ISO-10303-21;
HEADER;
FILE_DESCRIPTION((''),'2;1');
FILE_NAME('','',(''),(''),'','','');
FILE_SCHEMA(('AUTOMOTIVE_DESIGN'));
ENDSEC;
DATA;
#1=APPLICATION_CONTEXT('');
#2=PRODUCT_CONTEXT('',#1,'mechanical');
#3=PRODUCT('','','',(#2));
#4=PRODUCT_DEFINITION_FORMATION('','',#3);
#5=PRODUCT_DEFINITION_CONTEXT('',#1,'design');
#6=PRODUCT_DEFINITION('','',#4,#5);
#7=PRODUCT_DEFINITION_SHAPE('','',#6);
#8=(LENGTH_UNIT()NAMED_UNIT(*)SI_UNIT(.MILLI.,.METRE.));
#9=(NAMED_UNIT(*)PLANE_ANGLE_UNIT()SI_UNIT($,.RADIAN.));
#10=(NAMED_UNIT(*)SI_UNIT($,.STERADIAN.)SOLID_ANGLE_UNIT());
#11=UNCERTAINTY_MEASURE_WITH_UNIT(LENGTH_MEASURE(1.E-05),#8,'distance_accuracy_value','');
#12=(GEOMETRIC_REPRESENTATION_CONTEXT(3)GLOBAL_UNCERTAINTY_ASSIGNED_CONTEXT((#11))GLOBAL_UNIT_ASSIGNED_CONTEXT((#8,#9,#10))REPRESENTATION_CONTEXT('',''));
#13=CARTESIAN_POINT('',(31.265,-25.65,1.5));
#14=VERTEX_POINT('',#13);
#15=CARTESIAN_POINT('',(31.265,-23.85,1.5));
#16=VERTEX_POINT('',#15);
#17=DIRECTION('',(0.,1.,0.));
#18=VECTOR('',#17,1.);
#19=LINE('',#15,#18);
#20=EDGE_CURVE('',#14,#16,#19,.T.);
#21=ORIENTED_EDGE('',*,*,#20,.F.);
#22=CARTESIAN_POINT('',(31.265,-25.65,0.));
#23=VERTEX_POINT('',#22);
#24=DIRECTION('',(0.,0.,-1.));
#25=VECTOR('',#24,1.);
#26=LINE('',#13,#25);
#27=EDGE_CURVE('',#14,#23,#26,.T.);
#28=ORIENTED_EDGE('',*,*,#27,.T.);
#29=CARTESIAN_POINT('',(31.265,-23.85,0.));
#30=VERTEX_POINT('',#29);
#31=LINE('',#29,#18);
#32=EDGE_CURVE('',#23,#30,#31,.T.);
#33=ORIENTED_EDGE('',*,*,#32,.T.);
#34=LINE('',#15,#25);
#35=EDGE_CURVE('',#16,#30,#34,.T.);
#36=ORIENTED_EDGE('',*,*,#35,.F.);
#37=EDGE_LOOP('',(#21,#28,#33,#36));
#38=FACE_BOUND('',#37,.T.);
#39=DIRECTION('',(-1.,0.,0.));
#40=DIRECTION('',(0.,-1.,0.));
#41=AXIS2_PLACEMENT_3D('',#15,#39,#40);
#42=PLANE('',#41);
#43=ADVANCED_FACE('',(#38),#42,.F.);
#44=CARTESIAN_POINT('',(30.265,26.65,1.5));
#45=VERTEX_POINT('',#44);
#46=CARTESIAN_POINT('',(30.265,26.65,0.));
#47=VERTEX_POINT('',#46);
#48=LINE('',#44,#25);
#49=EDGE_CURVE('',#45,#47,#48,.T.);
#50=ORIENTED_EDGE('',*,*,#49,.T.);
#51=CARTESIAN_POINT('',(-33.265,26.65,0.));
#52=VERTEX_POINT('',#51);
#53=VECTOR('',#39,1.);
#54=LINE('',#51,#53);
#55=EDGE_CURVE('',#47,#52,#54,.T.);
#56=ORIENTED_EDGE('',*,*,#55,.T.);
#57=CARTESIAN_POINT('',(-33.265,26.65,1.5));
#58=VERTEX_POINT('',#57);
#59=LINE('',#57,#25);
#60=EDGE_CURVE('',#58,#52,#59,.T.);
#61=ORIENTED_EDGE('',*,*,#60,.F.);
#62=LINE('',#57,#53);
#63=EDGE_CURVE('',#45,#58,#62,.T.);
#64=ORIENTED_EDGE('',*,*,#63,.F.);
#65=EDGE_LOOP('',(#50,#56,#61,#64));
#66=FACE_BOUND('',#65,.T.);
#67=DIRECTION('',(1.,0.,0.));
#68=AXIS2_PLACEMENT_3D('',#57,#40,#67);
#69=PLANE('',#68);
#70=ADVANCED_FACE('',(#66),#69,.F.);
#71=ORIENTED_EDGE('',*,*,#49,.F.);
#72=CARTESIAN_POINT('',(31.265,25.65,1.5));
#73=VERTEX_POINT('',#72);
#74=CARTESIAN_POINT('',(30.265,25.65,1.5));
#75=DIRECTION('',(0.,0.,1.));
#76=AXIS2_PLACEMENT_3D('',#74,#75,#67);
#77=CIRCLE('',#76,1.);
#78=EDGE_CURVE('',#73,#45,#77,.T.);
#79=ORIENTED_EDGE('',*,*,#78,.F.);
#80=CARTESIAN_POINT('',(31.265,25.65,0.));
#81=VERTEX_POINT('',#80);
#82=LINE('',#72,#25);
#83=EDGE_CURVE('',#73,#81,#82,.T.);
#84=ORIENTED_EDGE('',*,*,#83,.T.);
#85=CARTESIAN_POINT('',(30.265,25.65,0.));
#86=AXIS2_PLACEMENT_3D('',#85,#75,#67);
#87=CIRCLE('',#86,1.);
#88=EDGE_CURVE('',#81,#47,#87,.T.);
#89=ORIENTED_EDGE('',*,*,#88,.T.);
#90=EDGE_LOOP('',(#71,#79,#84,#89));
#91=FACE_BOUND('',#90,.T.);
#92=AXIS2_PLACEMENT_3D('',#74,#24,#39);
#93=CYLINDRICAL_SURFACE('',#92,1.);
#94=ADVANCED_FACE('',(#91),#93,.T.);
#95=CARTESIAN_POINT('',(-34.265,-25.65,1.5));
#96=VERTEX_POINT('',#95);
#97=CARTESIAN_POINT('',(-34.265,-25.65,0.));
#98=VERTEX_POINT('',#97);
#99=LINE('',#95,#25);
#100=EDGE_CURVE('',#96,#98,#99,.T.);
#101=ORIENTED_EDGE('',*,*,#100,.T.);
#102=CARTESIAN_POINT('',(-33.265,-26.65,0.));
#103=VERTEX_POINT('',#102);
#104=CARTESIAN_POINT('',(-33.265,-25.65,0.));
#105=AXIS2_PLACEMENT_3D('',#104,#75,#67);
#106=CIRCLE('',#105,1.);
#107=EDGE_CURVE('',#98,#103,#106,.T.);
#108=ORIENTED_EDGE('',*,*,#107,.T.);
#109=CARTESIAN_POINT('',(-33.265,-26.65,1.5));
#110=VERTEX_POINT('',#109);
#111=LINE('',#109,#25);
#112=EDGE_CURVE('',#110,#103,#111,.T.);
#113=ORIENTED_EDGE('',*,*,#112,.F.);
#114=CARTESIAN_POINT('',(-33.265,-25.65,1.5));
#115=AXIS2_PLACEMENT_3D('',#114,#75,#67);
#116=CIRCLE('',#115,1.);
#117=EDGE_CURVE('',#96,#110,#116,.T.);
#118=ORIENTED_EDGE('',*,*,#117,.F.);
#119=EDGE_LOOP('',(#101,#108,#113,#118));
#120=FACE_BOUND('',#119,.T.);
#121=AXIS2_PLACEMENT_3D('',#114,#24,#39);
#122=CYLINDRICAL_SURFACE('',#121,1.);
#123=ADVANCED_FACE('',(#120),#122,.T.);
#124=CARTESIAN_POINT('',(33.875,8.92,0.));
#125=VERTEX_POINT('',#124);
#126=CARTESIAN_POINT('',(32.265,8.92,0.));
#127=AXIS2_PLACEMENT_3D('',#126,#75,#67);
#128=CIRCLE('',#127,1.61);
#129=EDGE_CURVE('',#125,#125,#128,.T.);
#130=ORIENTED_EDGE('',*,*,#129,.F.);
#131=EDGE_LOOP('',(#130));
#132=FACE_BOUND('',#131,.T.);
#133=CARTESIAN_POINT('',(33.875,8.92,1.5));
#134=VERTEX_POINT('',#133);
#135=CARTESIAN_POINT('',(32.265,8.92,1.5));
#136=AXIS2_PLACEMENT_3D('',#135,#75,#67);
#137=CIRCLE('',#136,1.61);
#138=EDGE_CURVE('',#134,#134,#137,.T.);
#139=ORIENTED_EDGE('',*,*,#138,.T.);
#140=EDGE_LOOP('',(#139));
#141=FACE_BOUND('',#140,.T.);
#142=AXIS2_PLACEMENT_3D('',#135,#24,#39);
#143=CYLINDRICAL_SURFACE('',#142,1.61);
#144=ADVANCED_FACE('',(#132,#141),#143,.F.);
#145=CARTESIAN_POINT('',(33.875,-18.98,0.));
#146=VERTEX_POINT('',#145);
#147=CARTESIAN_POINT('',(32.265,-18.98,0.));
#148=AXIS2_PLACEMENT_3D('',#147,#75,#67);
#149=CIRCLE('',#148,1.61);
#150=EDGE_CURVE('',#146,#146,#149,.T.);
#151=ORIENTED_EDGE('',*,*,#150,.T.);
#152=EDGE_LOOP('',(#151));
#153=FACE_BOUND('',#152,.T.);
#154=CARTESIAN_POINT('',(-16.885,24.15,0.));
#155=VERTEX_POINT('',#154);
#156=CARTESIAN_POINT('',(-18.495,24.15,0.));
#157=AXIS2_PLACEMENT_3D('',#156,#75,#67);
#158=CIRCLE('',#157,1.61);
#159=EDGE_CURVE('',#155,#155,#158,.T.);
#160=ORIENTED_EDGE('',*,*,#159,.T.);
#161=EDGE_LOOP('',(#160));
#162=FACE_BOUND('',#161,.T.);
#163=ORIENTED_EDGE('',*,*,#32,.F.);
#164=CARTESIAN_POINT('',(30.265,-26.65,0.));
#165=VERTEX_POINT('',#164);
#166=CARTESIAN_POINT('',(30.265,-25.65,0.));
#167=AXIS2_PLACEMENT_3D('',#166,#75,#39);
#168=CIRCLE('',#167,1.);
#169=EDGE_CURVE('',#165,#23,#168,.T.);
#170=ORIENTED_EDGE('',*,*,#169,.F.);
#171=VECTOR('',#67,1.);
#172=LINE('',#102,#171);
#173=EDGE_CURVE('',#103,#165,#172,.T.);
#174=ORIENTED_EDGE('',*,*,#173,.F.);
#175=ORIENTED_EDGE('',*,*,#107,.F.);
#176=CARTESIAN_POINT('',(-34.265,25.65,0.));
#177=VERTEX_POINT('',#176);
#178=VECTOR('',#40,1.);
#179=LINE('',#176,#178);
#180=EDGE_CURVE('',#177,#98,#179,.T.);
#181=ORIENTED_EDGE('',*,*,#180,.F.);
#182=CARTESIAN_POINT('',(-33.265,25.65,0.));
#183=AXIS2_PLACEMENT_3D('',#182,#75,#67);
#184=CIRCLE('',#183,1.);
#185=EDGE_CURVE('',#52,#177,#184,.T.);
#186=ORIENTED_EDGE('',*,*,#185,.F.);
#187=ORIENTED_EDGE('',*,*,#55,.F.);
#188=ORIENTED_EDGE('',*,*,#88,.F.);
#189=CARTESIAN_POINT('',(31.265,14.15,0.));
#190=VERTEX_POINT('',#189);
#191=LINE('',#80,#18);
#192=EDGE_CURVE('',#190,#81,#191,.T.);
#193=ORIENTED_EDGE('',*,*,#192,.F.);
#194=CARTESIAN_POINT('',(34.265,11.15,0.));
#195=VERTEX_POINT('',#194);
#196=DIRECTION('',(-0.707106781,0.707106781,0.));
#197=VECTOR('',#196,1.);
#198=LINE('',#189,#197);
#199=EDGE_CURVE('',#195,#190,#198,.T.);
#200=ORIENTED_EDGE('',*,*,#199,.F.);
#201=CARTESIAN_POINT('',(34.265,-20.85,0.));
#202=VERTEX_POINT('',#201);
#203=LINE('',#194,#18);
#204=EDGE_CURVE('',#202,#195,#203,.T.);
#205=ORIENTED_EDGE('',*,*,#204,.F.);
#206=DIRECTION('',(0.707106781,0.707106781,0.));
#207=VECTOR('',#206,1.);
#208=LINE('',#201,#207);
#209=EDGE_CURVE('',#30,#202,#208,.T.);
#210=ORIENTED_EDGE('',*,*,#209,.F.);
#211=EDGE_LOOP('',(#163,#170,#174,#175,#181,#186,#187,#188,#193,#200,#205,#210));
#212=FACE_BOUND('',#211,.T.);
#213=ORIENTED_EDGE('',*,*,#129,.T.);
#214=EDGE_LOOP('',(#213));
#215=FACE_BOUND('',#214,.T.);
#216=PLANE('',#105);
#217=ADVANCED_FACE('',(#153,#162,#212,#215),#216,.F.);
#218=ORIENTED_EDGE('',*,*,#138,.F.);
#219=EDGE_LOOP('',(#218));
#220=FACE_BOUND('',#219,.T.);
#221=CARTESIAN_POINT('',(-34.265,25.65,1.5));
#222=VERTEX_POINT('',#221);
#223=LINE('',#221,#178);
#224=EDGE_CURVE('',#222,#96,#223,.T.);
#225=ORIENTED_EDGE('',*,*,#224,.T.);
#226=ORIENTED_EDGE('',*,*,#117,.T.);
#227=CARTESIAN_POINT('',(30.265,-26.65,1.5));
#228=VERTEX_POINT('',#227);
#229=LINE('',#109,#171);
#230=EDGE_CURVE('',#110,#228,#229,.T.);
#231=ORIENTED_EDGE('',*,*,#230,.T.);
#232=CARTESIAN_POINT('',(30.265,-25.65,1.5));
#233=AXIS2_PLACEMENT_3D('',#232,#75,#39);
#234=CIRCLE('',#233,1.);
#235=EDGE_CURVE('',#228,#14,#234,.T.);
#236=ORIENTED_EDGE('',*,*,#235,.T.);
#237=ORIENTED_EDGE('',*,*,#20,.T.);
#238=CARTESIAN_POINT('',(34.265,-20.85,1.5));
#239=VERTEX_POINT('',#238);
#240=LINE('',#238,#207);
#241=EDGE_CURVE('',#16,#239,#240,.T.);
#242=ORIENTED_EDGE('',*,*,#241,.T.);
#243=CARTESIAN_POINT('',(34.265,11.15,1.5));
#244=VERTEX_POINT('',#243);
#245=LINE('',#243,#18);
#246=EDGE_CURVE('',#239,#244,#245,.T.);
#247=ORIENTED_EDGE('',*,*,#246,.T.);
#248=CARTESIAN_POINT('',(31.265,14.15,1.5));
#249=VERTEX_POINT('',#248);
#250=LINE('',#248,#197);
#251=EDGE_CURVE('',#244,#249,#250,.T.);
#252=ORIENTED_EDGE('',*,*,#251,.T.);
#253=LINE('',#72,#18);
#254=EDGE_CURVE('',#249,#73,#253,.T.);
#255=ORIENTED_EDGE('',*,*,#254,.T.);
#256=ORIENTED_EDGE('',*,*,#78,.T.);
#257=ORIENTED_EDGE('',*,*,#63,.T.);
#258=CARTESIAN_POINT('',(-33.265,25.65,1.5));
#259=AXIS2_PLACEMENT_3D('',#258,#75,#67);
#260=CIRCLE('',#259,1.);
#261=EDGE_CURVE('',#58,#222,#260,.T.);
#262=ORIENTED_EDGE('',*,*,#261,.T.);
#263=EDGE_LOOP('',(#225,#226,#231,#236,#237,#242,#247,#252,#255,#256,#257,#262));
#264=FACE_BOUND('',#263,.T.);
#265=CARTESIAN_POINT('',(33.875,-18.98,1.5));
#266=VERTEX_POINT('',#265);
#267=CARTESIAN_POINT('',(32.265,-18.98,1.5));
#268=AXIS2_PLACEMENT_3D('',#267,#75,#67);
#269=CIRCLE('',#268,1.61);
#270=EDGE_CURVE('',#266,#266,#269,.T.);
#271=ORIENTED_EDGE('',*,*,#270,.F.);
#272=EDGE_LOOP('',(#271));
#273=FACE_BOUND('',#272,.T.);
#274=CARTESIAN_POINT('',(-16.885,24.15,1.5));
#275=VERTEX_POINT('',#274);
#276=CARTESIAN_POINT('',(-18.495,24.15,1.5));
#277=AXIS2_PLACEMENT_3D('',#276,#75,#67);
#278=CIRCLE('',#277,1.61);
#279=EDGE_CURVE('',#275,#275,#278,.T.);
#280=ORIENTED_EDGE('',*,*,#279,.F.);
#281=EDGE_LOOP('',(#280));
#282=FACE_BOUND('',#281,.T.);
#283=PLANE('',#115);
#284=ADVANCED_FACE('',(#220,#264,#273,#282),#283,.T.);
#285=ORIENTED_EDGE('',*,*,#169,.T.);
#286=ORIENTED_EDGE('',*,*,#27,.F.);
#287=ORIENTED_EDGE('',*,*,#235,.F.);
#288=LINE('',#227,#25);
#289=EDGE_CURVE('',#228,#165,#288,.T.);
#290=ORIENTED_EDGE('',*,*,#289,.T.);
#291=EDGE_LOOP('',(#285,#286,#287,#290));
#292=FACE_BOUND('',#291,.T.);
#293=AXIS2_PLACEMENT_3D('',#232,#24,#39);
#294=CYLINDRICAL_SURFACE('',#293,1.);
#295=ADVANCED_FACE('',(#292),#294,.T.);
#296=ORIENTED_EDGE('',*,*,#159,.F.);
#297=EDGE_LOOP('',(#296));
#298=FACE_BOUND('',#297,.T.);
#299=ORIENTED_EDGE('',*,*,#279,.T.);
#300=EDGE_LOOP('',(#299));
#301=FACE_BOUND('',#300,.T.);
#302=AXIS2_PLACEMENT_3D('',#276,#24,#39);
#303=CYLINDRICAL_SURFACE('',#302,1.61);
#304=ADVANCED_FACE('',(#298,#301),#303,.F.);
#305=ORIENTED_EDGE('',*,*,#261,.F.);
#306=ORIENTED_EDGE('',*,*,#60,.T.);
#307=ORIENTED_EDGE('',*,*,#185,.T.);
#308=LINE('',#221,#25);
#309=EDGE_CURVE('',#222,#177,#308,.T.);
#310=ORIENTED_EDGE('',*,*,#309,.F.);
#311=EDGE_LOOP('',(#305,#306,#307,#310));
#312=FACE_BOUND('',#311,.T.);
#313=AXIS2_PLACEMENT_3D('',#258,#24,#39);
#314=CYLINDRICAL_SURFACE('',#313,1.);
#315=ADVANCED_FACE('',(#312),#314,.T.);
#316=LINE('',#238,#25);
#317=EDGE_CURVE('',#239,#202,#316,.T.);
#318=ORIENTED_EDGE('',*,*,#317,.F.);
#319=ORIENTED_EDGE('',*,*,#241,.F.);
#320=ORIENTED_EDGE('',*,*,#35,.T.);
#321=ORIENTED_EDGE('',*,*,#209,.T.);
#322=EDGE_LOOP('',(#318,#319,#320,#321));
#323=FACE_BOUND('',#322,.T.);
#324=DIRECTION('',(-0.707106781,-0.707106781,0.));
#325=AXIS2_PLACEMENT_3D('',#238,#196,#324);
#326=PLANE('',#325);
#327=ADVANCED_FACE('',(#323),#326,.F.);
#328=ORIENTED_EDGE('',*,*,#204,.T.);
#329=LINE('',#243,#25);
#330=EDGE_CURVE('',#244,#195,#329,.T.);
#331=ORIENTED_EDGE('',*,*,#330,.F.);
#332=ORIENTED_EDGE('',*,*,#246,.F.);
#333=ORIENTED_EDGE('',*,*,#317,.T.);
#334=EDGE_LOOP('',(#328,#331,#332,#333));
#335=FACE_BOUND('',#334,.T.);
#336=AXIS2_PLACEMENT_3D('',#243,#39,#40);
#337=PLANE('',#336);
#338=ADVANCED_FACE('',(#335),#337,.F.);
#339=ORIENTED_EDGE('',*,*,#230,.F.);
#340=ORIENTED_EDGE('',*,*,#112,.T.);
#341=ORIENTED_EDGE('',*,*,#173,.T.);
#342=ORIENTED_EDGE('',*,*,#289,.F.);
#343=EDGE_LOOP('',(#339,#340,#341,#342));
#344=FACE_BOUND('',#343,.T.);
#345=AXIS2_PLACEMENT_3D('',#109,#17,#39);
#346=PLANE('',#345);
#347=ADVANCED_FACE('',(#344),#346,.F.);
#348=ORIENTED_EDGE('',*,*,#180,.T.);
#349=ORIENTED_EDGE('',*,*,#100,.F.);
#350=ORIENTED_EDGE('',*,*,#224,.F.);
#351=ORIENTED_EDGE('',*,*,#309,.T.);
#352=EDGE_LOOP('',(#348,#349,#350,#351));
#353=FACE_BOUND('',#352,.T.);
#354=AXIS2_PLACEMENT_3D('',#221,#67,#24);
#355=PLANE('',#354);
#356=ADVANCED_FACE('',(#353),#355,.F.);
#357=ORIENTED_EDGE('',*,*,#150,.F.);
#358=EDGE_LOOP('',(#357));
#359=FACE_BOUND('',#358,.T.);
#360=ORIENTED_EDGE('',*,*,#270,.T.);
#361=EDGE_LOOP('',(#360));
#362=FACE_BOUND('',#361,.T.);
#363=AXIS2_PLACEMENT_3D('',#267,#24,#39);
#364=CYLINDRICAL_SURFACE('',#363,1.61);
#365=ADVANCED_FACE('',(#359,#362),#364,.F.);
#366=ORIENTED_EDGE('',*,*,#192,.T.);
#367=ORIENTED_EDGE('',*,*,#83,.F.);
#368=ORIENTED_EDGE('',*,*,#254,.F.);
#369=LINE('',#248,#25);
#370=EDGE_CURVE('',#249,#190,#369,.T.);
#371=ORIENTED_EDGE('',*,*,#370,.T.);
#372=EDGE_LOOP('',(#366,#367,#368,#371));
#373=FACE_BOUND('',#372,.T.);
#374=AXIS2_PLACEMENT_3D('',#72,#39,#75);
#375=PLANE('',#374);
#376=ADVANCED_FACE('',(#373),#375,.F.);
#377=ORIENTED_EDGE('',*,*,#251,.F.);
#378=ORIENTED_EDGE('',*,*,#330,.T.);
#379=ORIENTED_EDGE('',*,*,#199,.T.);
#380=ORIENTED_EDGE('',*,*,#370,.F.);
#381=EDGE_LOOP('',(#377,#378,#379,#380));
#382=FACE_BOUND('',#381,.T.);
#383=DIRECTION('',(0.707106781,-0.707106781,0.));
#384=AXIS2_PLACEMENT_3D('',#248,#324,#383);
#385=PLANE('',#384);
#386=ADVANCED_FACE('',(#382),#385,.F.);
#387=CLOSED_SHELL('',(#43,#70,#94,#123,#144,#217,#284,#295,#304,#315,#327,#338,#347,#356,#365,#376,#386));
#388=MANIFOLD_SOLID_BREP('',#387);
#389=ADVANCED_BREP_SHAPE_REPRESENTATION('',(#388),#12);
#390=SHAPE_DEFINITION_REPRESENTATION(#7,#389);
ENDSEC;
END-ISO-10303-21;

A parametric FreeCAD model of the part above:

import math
import FreeCAD as App
import Part
import Sketcher
from FreeCAD import Vector

doc = App.newDocument("Part")
body = doc.addObject("PartDesign::Body", "Body")

sketch1 = doc.addObject("Sketcher::SketchObject", "Sketch")
body.addObject(sketch1)
sketch1.AttachmentSupport = (doc.XY_Plane, [""])
sketch1.MapMode = "FlatFace"
sketch1.addGeometry([
    Part.LineSegment(Vector(31.265, 14.15, 0), Vector(31.265, 25.65, 0)),
    Part.ArcOfCircle(Part.Circle(Vector(30.265, 25.65, 0), Vector(0, 0, 1), 1), math.radians(0), math.radians(90)),
    Part.LineSegment(Vector(30.265, 26.65, 0), Vector(-33.265, 26.65, 0)),
    Part.ArcOfCircle(Part.Circle(Vector(-33.265, 25.65, 0), Vector(0, 0, 1), 1), math.radians(90), math.radians(180)),
    Part.LineSegment(Vector(-34.265, 25.65, 0), Vector(-34.265, -25.65, 0)),
    Part.ArcOfCircle(Part.Circle(Vector(-33.265, -25.65, 0), Vector(0, 0, 1), 1), math.radians(-180), math.radians(-90)),
    Part.LineSegment(Vector(-33.265, -26.65, 0), Vector(30.265, -26.65, 0)),
    Part.ArcOfCircle(Part.Circle(Vector(30.265, -25.65, 0), Vector(0, 0, 1), 1), math.radians(-90), math.radians(0)),
    Part.LineSegment(Vector(31.265, -25.65, 0), Vector(31.265, -23.85, 0)),
    Part.LineSegment(Vector(31.265, -23.85, 0), Vector(34.265, -20.85, 0)),
    Part.LineSegment(Vector(34.265, -20.85, 0), Vector(34.265, 11.15, 0)),
    Part.LineSegment(Vector(34.265, 11.15, 0), Vector(31.265, 14.15, 0)),
    Part.Circle(Vector(32.265, -18.98, 0), Vector(0, 0, 1), 1.61),
    Part.Circle(Vector(32.265, 8.92, 0), Vector(0, 0, 1), 1.61),
    Part.Circle(Vector(-18.495, 24.15, 0), Vector(0, 0, 1), 1.61),
], False)
sketch1.addConstraint([
    Sketcher.Constraint("Tangent", 0, 2, 1, 1),
    Sketcher.Constraint("Tangent", 1, 2, 2, 1),
    Sketcher.Constraint("Tangent", 2, 2, 3, 1),
    Sketcher.Constraint("Tangent", 3, 2, 4, 1),
    Sketcher.Constraint("Tangent", 4, 2, 5, 1),
    Sketcher.Constraint("Tangent", 5, 2, 6, 1),
    Sketcher.Constraint("Tangent", 6, 2, 7, 1),
    Sketcher.Constraint("Tangent", 7, 2, 8, 1),
    Sketcher.Constraint("Coincident", 8, 2, 9, 1),
    Sketcher.Constraint("Coincident", 9, 2, 10, 1),
    Sketcher.Constraint("Coincident", 10, 2, 11, 1),
    Sketcher.Constraint("Coincident", 11, 2, 0, 1),
    Sketcher.Constraint("Vertical", 0),
    Sketcher.Constraint("Horizontal", 2),
    Sketcher.Constraint("Vertical", 4),
    Sketcher.Constraint("Horizontal", 6),
    Sketcher.Constraint("Vertical", 8),
    Sketcher.Constraint("Vertical", 10),
    Sketcher.Constraint("Equal", 1, 3),
    Sketcher.Constraint("Equal", 3, 5),
    Sketcher.Constraint("Equal", 5, 7),
    Sketcher.Constraint("Equal", 12, 13),
    Sketcher.Constraint("Equal", 13, 14),
    Sketcher.Constraint("Symmetric", 1, 3, 7, 3, -1),
    Sketcher.Constraint("Perpendicular", 9, 11),
    Sketcher.Constraint("Vertical", 12, 3, 13, 3),
    Sketcher.Constraint("Equal", 9, 11),
    Sketcher.Constraint("Radius", 1, 1.0),
    Sketcher.Constraint("Diameter", 12, 3.22),
    Sketcher.Constraint("DistanceY", 10, 1, 10, 2, 32.0),
    Sketcher.Constraint("DistanceY", 0, 1, 0, 2, 11.5),
    Sketcher.Constraint("DistanceY", 4, 2, 4, 1, 51.3),
    Sketcher.Constraint("DistanceY", 8, 1, 8, 2, 1.8),
    Sketcher.Constraint("DistanceX", 7, 3, 12, 3, 2.0),
    Sketcher.Constraint("DistanceX", 2, 2, 2, 1, 63.53),
    Sketcher.Constraint("DistanceY", 12, 3, 13, 3, 27.9),
    Sketcher.Constraint("DistanceY", 14, 3, 3, 3, 1.5),
    Sketcher.Constraint("DistanceY", 12, 3, -1, 1, 18.98),
    Sketcher.Constraint("DistanceX", 3, 3, 14, 3, 14.77),
    Sketcher.Constraint("DistanceX", -1, 1, 1, 3, 30.265),
])
pad1 = doc.addObject("PartDesign::Pad", "Pad")
body.addObject(pad1)
pad1.Profile = sketch1
pad1.Length = 1.5

doc.recompute()
